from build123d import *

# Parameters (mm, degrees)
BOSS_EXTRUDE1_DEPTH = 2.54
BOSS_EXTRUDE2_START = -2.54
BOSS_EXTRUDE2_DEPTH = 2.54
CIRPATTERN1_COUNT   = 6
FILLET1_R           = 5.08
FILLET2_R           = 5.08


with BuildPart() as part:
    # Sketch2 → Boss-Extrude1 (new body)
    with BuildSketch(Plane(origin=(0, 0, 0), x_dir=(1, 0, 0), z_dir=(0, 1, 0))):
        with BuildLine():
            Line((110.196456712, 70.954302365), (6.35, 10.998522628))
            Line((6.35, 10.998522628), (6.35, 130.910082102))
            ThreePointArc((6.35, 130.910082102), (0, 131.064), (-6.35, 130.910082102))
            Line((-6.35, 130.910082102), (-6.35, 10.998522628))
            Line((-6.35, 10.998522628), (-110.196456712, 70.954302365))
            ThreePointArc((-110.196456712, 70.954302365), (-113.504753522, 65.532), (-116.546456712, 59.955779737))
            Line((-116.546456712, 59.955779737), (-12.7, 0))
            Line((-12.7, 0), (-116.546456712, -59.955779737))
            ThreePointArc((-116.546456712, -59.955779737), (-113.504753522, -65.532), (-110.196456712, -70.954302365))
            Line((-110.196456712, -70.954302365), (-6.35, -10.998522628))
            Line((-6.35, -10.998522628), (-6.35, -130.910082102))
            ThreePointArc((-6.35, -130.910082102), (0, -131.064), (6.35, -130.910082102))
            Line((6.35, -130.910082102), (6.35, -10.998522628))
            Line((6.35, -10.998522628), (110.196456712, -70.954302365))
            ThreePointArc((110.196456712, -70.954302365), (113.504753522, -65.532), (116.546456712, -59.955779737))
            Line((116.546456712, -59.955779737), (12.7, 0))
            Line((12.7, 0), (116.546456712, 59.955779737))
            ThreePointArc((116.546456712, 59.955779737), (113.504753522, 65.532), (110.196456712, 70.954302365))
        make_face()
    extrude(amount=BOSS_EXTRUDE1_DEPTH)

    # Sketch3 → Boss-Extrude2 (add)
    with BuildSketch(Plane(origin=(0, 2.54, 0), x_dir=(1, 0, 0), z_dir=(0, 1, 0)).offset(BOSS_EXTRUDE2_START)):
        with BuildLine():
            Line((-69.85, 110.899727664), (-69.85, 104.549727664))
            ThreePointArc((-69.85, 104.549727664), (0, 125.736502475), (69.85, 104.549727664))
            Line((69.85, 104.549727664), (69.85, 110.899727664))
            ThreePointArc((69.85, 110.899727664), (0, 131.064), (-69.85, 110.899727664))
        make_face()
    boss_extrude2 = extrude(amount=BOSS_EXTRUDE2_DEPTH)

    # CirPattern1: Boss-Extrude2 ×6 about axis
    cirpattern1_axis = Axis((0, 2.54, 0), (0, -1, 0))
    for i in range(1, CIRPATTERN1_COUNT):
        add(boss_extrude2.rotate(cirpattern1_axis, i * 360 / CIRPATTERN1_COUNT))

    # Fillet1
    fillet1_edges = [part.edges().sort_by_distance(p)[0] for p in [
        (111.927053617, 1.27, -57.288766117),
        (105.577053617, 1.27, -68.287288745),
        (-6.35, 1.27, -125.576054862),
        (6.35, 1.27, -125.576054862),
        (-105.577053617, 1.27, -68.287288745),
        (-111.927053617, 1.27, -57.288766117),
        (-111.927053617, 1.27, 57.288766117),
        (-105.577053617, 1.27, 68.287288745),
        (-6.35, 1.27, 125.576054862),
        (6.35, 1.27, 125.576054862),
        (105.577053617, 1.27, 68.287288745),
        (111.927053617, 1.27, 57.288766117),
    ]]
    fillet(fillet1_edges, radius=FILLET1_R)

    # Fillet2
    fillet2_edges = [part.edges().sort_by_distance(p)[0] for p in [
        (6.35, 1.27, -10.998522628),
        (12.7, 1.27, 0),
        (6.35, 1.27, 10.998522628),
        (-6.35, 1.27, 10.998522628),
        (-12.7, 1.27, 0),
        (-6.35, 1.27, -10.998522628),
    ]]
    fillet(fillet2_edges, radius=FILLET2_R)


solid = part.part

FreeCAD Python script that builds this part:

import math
import FreeCAD as App
import Part
import Sketcher
from FreeCAD import Vector
Q = App.Units.Quantity


def edges_at(feature, points):
    """Names of the edges that pass closest to the given points."""
    edges = feature.Shape.Edges
    near = lambda p: min(range(len(edges)), key=lambda i: edges[i].distToShape(Part.Vertex(*p))[0])
    return sorted({f"Edge{near(p) + 1}" for p in points})

doc = App.newDocument("Part")
body = doc.addObject("PartDesign::Body", "Body")

sketch1 = body.newObject("Sketcher::SketchObject", "Sketch")
sketch1.AttachmentSupport = (doc.getObject("XZ_Plane"), [""])
sketch1.MapMode = "FlatFace"
sketch1.addGeometry(Part.LineSegment(Vector(110.196457, -70.954302, 0), Vector(6.35, -10.998523, 0)), False)
sketch1.addGeometry(Part.LineSegment(Vector(6.35, -10.998523, 0), Vector(6.35, -130.910082, 0)), False)
sketch1.addGeometry(Part.ArcOfCircle(Part.Circle(Vector(0, 0, 0), Vector(0, 0, 1), 131.064), math.radians(-92.777045), math.radians(-87.222955)), False)
sketch1.addGeometry(Part.LineSegment(Vector(-6.35, -130.910082, 0), Vector(-6.35, -10.998523, 0)), False)
sketch1.addGeometry(Part.LineSegment(Vector(-6.35, -10.998523, 0), Vector(-110.196457, -70.954302, 0)), False)
sketch1.addGeometry(Part.ArcOfCircle(Part.Circle(Vector(0, 0, 0), Vector(0, 0, 1), 131.064), math.radians(-152.777045), math.radians(-147.222955)), False)
sketch1.addGeometry(Part.LineSegment(Vector(-116.546457, -59.95578, 0), Vector(-12.7, 0, 0)), False)
sketch1.addGeometry(Part.LineSegment(Vector(-12.7, 0, 0), Vector(-116.546457, 59.95578, 0)), False)
sketch1.addGeometry(Part.ArcOfCircle(Part.Circle(Vector(0, 0, 0), Vector(0, 0, 1), 131.064), math.radians(147.222955), math.radians(152.777045)), False)
sketch1.addGeometry(Part.LineSegment(Vector(-110.196457, 70.954302, 0), Vector(-6.35, 10.998523, 0)), False)
sketch1.addGeometry(Part.LineSegment(Vector(-6.35, 10.998523, 0), Vector(-6.35, 130.910082, 0)), False)
sketch1.addGeometry(Part.ArcOfCircle(Part.Circle(Vector(0, 0, 0), Vector(0, 0, 1), 131.064), math.radians(87.222955), math.radians(92.777045)), False)
sketch1.addGeometry(Part.LineSegment(Vector(6.35, 130.910082, 0), Vector(6.35, 10.998523, 0)), False)
sketch1.addGeometry(Part.LineSegment(Vector(6.35, 10.998523, 0), Vector(110.196457, 70.954302, 0)), False)
sketch1.addGeometry(Part.ArcOfCircle(Part.Circle(Vector(0, 0, 0), Vector(0, 0, 1), 131.064), math.radians(27.222955), math.radians(32.777045)), False)
sketch1.addGeometry(Part.LineSegment(Vector(116.546457, 59.95578, 0), Vector(12.7, 0, 0)), False)
sketch1.addGeometry(Part.LineSegment(Vector(12.7, 0, 0), Vector(116.546457, -59.95578, 0)), False)
sketch1.addGeometry(Part.ArcOfCircle(Part.Circle(Vector(0, 0, 0), Vector(0, 0, 1), 131.064), math.radians(-32.777045), math.radians(-27.222955)), False)
sketch1.addConstraint(Sketcher.Constraint("Coincident", 0, 2, 1, 1))
sketch1.addConstraint(Sketcher.Constraint("Coincident", 1, 2, 2, 2))
sketch1.addConstraint(Sketcher.Constraint("Coincident", 2, 1, 3, 1))
sketch1.addConstraint(Sketcher.Constraint("Coincident", 3, 2, 4, 1))
sketch1.addConstraint(Sketcher.Constraint("Coincident", 4, 2, 5, 2))
sketch1.addConstraint(Sketcher.Constraint("Coincident", 5, 1, 6, 1))
sketch1.addConstraint(Sketcher.Constraint("Coincident", 6, 2, 7, 1))
sketch1.addConstraint(Sketcher.Constraint("Coincident", 7, 2, 8, 2))
sketch1.addConstraint(Sketcher.Constraint("Coincident", 8, 1, 9, 1))
sketch1.addConstraint(Sketcher.Constraint("Coincident", 9, 2, 10, 1))
sketch1.addConstraint(Sketcher.Constraint("Coincident", 10, 2, 11, 2))
sketch1.addConstraint(Sketcher.Constraint("Coincident", 11, 1, 12, 1))
sketch1.addConstraint(Sketcher.Constraint("Coincident", 12, 2, 13, 1))
sketch1.addConstraint(Sketcher.Constraint("Coincident", 13, 2, 14, 2))
sketch1.addConstraint(Sketcher.Constraint("Coincident", 14, 1, 15, 1))
sketch1.addConstraint(Sketcher.Constraint("Coincident", 15, 2, 16, 1))
sketch1.addConstraint(Sketcher.Constraint("Coincident", 16, 2, 17, 2))
sketch1.addConstraint(Sketcher.Constraint("Coincident", 17, 1, 0, 1))
sketch1.addConstraint(Sketcher.Constraint("Vertical", 1))
sketch1.addConstraint(Sketcher.Constraint("Vertical", 3))
sketch1.addConstraint(Sketcher.Constraint("Vertical", 10))
sketch1.addConstraint(Sketcher.Constraint("Vertical", 12))
sketch1.addConstraint(Sketcher.Constraint("Coincident", 2, 3, -1, 1))
sketch1.addConstraint(Sketcher.Constraint("Coincident", 5, 3, -1, 1))
sketch1.addConstraint(Sketcher.Constraint("Coincident", 8, 3, -1, 1))
sketch1.addConstraint(Sketcher.Constraint("Coincident", 11, 3, -1, 1))
sketch1.addConstraint(Sketcher.Constraint("Coincident", 14, 3, -1, 1))
sketch1.addConstraint(Sketcher.Constraint("Coincident", 17, 3, -1, 1))
sketch1.addConstraint(Sketcher.Constraint("Equal", 2, 5))
sketch1.addConstraint(Sketcher.Constraint("Equal", 5, 8))
sketch1.addConstraint(Sketcher.Constraint("Equal", 8, 11))
sketch1.addConstraint(Sketcher.Constraint("Equal", 11, 14))
sketch1.addConstraint(Sketcher.Constraint("Equal", 14, 17))
sketch1.addConstraint(Sketcher.Constraint("Symmetric", 0, 2, 9, 2, -1, 1))
sketch1.addConstraint(Sketcher.Constraint("Symmetric", 3, 2, 12, 2, -1, 1))
sketch1.addConstraint(Sketcher.Constraint("Symmetric", 6, 2, 15, 2, -1, 1))
sketch1.addConstraint(Sketcher.Constraint("Symmetric", 0, 2, 3, 2, -2))
sketch1.addConstraint(Sketcher.Constraint("PointOnObject", 6, 2, -1))
sketch1.addConstraint(Sketcher.Constraint("Parallel", 4, 6))
sketch1.addConstraint(Sketcher.Constraint("Parallel", 0, 7))
sketch1.addConstraint(Sketcher.Constraint("Parallel", 7, 9))
sketch1.addConstraint(Sketcher.Constraint("Parallel", 6, 13))
sketch1.addConstraint(Sketcher.Constraint("Parallel", 13, 15))
sketch1.addConstraint(Sketcher.Constraint("Parallel", 9, 16))
sketch1.addConstraint(Sketcher.Constraint("Horizontal", 8, 1, 13, 2))
sketch1.addConstraint(Sketcher.Constraint("Equal", 4, 6))
sketch1.addConstraint(Sketcher.Constraint("Radius", 2, Q("5.16 in")))
sketch1.addConstraint(Sketcher.Constraint("Angle", 0, Q("150 deg")))
sketch1.addConstraint(Sketcher.Constraint("DistanceX", 6, 2, -1, 1, Q("0.5 in")))
sketch1.addConstraint(Sketcher.Constraint("DistanceX", 2, 1, 1, 2, Q("0.5 in")))
pad1 = body.newObject("PartDesign::Pad", "Pad")
pad1.Profile = sketch1
pad1.Length = Q("0.1 in")
pad1.Reversed = True

sketch2 = body.newObject("Sketcher::SketchObject", "Sketch001")
sketch2.AttachmentSupport = (doc.getObject("XZ_Plane"), [""])
sketch2.MapMode = "FlatFace"
sketch2.addGeometry(Part.LineSegment(Vector(-69.85, -110.899728, 0), Vector(-69.85, -104.549728, 0)), False)
sketch2.addGeometry(Part.ArcOfCircle(Part.Circle(Vector(0, 0, 0), Vector(0, 0, 1), 125.736502), math.radians(-123.747009), math.radians(-56.252991)), False)
sketch2.addGeometry(Part.LineSegment(Vector(69.85, -104.549728, 0), Vector(69.85, -110.899728, 0)), False)
sketch2.addGeometry(Part.ArcOfCircle(Part.Circle(Vector(0, 0, 0), Vector(0, 0, 1), 131.064), math.radians(-122.204703), math.radians(-57.795297)), False)
sketch2.addConstraint(Sketcher.Constraint("Coincident", 0, 2, 1, 1))
sketch2.addConstraint(Sketcher.Constraint("Coincident", 1, 2, 2, 1))
sketch2.addConstraint(Sketcher.Constraint("Coincident", 2, 2, 3, 2))
sketch2.addConstraint(Sketcher.Constraint("Coincident", 3, 1, 0, 1))
sketch2.addConstraint(Sketcher.Constraint("Vertical", 0))
sketch2.addConstraint(Sketcher.Constraint("Vertical", 2))
sketch2.addConstraint(Sketcher.Constraint("Coincident", 1, 3, -1, 1))
sketch2.addConstraint(Sketcher.Constraint("Coincident", 3, 3, -1, 1))
sketch2.addConstraint(Sketcher.Constraint("Horizontal", 0, 2, 1, 2))
sketch2.addConstraint(Sketcher.Constraint("Radius", 3, Q("5.16 in")))
sketch2.addConstraint(Sketcher.Constraint("DistanceY", 0, 1, 0, 2, Q("0.25 in")))
sketch2.addConstraint(Sketcher.Constraint("DistanceX", 0, 2, 1, 2, Q("5.5 in")))
pad2 = body.newObject("PartDesign::Pad", "Pad001")
pad2.Profile = sketch2
pad2.Length = Q("0.1 in")
pad2.Reversed = True
doc.recompute()

polarpattern = body.newObject("PartDesign::PolarPattern", "PolarPattern")
polarpattern.Originals = [pad2]
polarpattern.Axis = (doc.getObject("Y_Axis"), [""])
polarpattern.Angle = 360
polarpattern.Occurrences = 6
body.Tip = polarpattern
doc.recompute()

fillet = body.newObject("PartDesign::Fillet", "Fillet")
fillet.Base = (polarpattern, edges_at(polarpattern, [
    (111.927, 1.27, -57.289),
    (105.577, 1.27, -68.287),
    (-6.35, 1.27, -125.576),
    (6.35, 1.27, -125.576),
    (-105.577, 1.27, -68.287),
    (-111.927, 1.27, -57.289),
    (-111.927, 1.27, 57.289),
    (-105.577, 1.27, 68.287),
    (-6.35, 1.27, 125.576),
    (6.35, 1.27, 125.576),
    (105.577, 1.27, 68.287),
    (111.927, 1.27, 57.289),
]))
fillet.Radius = Q("0.2 in")
doc.recompute()

fillet2 = body.newObject("PartDesign::Fillet", "Fillet001")
fillet2.Base = (fillet, edges_at(fillet, [
    (6.35, 1.27, -10.999),
    (12.7, 1.27, 0),
    (6.35, 1.27, 10.999),
    (-6.35, 1.27, 10.999),
    (-12.7, 1.27, 0),
    (-6.35, 1.27, -10.999),
]))
fillet2.Radius = Q("0.2 in")

doc.recompute()
